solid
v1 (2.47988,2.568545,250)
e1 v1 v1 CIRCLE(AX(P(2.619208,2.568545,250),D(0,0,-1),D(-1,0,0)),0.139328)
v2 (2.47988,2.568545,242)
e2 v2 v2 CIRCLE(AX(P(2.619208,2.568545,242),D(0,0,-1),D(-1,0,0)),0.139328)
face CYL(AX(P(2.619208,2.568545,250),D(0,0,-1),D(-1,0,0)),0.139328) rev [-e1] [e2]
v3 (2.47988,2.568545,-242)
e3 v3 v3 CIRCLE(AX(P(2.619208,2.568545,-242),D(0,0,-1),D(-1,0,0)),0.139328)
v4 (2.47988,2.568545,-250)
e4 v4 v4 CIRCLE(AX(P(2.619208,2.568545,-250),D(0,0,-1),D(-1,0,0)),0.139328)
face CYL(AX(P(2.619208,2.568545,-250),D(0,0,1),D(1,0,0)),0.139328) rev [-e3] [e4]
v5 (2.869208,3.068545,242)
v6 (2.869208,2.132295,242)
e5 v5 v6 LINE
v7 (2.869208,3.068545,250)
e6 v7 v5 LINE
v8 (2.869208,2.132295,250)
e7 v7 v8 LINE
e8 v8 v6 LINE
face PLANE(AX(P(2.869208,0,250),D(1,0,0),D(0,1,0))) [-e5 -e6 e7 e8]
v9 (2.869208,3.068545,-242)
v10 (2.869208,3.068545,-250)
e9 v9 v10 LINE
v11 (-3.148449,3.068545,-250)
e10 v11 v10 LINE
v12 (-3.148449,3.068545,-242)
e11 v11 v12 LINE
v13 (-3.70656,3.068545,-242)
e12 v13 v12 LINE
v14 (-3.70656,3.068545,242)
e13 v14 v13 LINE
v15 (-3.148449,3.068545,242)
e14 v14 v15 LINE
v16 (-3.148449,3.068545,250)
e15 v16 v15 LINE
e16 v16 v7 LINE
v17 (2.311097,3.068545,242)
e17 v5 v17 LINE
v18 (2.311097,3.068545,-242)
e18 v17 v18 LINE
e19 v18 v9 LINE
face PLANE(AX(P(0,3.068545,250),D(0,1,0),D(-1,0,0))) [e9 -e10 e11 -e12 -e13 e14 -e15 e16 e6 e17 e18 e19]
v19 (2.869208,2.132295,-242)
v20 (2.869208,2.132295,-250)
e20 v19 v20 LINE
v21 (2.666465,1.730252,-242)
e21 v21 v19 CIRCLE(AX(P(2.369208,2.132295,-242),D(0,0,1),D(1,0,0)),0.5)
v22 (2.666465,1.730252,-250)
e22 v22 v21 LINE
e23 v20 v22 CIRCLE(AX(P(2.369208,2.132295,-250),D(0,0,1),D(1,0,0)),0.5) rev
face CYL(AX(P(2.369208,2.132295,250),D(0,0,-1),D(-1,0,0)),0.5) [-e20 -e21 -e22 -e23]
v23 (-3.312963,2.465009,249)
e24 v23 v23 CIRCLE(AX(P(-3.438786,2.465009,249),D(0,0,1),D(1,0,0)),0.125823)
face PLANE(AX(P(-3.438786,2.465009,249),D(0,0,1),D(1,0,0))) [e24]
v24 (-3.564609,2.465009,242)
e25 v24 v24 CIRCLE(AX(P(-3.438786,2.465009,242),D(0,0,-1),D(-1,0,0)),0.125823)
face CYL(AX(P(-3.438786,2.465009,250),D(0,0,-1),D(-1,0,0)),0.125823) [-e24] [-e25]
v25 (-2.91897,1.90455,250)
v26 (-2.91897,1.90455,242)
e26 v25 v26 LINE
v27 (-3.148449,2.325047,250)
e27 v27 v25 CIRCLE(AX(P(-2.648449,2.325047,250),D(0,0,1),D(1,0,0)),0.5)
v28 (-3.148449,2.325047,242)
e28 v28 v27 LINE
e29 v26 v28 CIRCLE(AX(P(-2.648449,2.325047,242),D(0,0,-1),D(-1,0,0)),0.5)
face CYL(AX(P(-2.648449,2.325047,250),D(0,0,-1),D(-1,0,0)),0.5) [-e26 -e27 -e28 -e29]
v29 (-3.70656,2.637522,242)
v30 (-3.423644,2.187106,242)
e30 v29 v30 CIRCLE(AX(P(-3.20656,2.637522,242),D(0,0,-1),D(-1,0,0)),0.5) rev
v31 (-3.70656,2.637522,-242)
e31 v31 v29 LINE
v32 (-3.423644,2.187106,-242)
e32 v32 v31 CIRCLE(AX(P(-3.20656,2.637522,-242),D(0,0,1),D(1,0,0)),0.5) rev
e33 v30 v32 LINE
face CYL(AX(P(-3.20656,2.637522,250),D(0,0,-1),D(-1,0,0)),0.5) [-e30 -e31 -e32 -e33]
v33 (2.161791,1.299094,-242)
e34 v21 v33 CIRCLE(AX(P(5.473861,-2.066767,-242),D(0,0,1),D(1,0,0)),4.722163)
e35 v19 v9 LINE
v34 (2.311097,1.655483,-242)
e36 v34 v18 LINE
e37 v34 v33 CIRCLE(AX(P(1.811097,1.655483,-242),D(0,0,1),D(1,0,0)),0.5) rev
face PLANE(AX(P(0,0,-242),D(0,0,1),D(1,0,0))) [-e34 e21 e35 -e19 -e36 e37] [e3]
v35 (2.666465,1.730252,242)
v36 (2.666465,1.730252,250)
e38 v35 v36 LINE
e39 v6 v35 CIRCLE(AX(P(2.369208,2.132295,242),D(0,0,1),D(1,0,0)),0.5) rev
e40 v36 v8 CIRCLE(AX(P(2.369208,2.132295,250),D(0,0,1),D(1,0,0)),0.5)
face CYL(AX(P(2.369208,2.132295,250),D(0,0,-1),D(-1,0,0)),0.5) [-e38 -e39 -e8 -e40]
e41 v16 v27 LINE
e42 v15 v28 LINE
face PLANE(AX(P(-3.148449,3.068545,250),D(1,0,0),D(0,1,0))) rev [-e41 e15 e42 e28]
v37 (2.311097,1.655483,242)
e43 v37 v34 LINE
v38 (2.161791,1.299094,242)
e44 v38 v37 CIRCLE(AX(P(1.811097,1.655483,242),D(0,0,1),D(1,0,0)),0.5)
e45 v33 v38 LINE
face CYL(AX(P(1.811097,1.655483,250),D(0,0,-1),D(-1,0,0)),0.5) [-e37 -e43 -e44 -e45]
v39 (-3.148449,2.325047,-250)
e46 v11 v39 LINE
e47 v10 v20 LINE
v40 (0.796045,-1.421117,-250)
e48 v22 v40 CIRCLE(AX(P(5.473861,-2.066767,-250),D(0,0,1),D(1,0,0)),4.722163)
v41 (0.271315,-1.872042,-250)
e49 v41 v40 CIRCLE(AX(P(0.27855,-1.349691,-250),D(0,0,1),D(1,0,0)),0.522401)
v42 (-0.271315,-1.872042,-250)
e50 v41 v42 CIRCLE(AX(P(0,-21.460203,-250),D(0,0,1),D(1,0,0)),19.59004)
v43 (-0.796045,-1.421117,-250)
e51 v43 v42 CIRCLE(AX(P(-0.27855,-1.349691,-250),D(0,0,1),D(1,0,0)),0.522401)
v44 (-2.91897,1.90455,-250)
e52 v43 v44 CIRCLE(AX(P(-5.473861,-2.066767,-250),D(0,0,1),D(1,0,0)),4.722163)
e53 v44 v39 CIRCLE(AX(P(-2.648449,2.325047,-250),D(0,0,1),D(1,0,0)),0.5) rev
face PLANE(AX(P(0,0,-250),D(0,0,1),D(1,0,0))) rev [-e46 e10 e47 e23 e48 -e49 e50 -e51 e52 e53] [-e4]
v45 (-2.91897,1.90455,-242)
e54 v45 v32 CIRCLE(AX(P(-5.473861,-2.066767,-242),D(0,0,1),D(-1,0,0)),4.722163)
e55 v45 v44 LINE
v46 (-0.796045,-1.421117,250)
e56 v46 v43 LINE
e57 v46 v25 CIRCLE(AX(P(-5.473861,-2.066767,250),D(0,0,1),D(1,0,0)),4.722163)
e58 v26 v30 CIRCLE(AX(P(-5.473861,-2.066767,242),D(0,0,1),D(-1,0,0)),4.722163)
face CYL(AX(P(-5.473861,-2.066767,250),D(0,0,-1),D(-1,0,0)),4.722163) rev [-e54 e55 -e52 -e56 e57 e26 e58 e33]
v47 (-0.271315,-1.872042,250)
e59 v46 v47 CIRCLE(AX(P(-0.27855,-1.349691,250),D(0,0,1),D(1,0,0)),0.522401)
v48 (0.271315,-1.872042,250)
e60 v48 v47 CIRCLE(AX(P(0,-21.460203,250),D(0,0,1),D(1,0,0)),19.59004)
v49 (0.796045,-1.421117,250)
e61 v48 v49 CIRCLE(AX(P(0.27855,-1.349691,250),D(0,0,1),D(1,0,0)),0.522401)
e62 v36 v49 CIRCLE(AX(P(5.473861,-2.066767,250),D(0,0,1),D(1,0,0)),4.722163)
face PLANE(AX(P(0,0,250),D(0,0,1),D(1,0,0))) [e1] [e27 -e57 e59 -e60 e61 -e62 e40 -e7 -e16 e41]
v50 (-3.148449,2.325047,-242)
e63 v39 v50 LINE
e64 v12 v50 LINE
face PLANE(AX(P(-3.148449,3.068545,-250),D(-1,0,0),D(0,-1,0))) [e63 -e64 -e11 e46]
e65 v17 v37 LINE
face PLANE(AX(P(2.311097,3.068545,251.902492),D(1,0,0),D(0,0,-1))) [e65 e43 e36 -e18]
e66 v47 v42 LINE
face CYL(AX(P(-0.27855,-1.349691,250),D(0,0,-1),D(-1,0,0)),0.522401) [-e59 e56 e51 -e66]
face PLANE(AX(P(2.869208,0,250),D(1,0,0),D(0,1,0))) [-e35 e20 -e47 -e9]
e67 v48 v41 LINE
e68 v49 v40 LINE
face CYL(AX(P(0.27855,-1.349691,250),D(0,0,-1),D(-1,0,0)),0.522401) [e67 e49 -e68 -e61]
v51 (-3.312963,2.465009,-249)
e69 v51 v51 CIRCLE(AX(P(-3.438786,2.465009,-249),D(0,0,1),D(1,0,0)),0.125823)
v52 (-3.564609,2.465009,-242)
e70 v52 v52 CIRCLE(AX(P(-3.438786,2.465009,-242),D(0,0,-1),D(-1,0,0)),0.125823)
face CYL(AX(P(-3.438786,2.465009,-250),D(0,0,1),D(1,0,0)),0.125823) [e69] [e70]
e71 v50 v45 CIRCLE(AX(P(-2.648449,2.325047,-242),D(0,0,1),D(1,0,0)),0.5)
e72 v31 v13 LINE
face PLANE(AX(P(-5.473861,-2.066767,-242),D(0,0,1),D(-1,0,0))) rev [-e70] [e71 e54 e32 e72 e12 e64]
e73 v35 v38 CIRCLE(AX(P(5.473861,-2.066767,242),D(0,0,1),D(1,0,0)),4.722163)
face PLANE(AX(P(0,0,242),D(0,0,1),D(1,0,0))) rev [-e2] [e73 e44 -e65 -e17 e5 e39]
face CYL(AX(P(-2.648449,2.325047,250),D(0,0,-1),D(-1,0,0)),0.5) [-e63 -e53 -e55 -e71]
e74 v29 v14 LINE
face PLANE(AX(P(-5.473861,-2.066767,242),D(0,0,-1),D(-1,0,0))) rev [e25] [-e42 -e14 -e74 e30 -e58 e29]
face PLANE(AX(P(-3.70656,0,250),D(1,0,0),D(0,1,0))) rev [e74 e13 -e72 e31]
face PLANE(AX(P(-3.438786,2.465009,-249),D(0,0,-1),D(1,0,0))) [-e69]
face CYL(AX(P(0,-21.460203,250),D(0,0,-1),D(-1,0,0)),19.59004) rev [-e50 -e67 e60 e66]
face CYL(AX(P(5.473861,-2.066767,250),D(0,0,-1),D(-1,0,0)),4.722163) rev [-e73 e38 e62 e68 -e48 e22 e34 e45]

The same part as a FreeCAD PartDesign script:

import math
import FreeCAD as App
import Part
import Sketcher
Q = App.Units.Quantity


def edges_at(feature, points):
    """Names of the edges that pass closest to the given points."""
    edges = feature.Shape.Edges
    near = lambda p: min(range(len(edges)), key=lambda i: edges[i].distToShape(Part.Vertex(*p))[0])
    return sorted({f"Edge{near(p) + 1}" for p in points})

doc = App.newDocument("Part")
body = doc.addObject("PartDesign::Body", "Body")

sketch1 = doc.addObject("Sketcher::SketchObject", "Sketch")
body.addObject(sketch1)
sketch1.AttachmentSupport = (doc.XY_Plane, [""])
sketch1.MapMode = "FlatFace"
sketch1.addGeometry([
    Part.LineSegment(App.Vector(2.9, 3.1, 0), App.Vector(-3.7, 3.1, 0)),
    Part.LineSegment(App.Vector(-3.7, 3.1, 0), App.Vector(-3.7, 2.3, 0)),
    Part.ArcOfCircle(Part.Circle(App.Vector(-5.5, -2.1, 0), App.Vector(0, 0, 1), 4.7), math.radians(8), math.radians(68)),
    Part.ArcOfCircle(Part.Circle(App.Vector(-0.3, -1.3, 0), App.Vector(0, 0, 1), 0.5), math.radians(-172), math.radians(-89)),
    Part.ArcOfCircle(Part.Circle(App.Vector(0, -21.5, 0), App.Vector(0, 0, 1), 19.6), math.radians(89.21), math.radians(90.79)),
    Part.ArcOfCircle(Part.Circle(App.Vector(0.3, -1.3, 0), App.Vector(0, 0, 1), 0.5), math.radians(-91), math.radians(-8)),
    Part.ArcOfCircle(Part.Circle(App.Vector(5.5, -2.1, 0), App.Vector(0, 0, 1), 4.7), math.radians(123), math.radians(172)),
    Part.LineSegment(App.Vector(2.9, 1.9, 0), App.Vector(2.9, 3.1, 0)),
], False)
sketch1.addConstraint([
    Sketcher.Constraint("Coincident", 0, 2, 1, 1),
    Sketcher.Constraint("Coincident", 1, 2, 2, 2),
    Sketcher.Constraint("Tangent", 2, 1, 3, 1),
    Sketcher.Constraint("Tangent", 3, 2, 4, 2),
    Sketcher.Constraint("Tangent", 4, 1, 5, 1),
    Sketcher.Constraint("Tangent", 5, 2, 6, 2),
    Sketcher.Constraint("Coincident", 6, 1, 7, 1),
    Sketcher.Constraint("Coincident", 7, 2, 0, 1),
    Sketcher.Constraint("Horizontal", 0),
    Sketcher.Constraint("Vertical", 1),
    Sketcher.Constraint("Vertical", 7),
    Sketcher.Constraint("Equal", 3, 5),
    Sketcher.Constraint("Equal", 2, 6),
    Sketcher.Constraint("Symmetric", 3, 3, 5, 3, -2),
    Sketcher.Constraint("Horizontal", 2, 3, 6, 3),
    Sketcher.Constraint("Radius", 3, Q("0.522401 mm")),
    Sketcher.Constraint("Radius", 2, Q("4.722163 mm")),
    Sketcher.Constraint("Radius", 4, Q("19.590036 mm")),
    Sketcher.Constraint("DistanceY", 1, 2, 1, 1, Q("0.756332 mm")),
    Sketcher.Constraint("DistanceY", 4, 3, -1, 1, Q("21.460199 mm")),
    Sketcher.Constraint("DistanceX", 3, 3, 5, 3, Q("0.5571 mm")),
    Sketcher.Constraint("DistanceX", 2, 3, 0, 2, Q("1.767301 mm")),
    Sketcher.Constraint("DistanceX", 0, 2, 0, 1, Q("6.575768 mm")),
    Sketcher.Constraint("DistanceY", 7, 1, 7, 2, Q("1.196454 mm")),
])
pad1 = doc.addObject("PartDesign::Pad", "Pad")
body.addObject(pad1)
pad1.Profile = sketch1
pad1.Length = 500
pad1.Midplane = True

sketch2 = doc.addObject("Sketcher::SketchObject", "Sketch001")
body.addObject(sketch2)
sketch2.AttachmentSupport = (doc.XY_Plane, [""])
sketch2.MapMode = "FlatFace"
sketch2.addGeometry([
    Part.LineSegment(App.Vector(2.3, 3.1, 0), App.Vector(2.3, 1.2, 0)),
    Part.LineSegment(App.Vector(2.3, 1.2, 0), App.Vector(2.9, 1.2, 0)),
    Part.LineSegment(App.Vector(2.9, 1.2, 0), App.Vector(2.9, 3.1, 0)),
    Part.LineSegment(App.Vector(2.9, 3.1, 0), App.Vector(2.3, 3.1, 0)),
], False)
sketch2.addConstraint([
    Sketcher.Constraint("Coincident", 0, 2, 1, 1),
    Sketcher.Constraint("Coincident", 1, 2, 2, 1),
    Sketcher.Constraint("Coincident", 2, 2, 3, 1),
    Sketcher.Constraint("Coincident", 3, 2, 0, 1),
    Sketcher.Constraint("Vertical", 0),
    Sketcher.Constraint("Horizontal", 1),
    Sketcher.Constraint("Vertical", 2),
    Sketcher.Constraint("Horizontal", 3),
    Sketcher.Constraint("DistanceX", 1, 1, 1, 2, Q("0.558111 mm")),
    Sketcher.Constraint("DistanceY", 0, 2, 0, 1, Q("1.818787 mm")),
    Sketcher.Constraint("DistanceX", -1, 1, 1, 2, Q("2.869208 mm")),
    Sketcher.Constraint("DistanceY", -1, 1, 0, 2, Q("1.249758 mm")),
])
pocket1 = doc.addObject("PartDesign::Pocket", "Pocket")
body.addObject(pocket1)
pocket1.Profile = sketch2
pocket1.Type = "TwoLengths"
pocket1.Length = 242
pocket1.Length2 = 242
pocket1.Reversed = True

sketch3 = doc.addObject("Sketcher::SketchObject", "Sketch002")
body.addObject(sketch3)
sketch3.AttachmentSupport = (doc.XY_Plane, [""])
sketch3.MapMode = "FlatFace"
sketch3.AttachmentOffset = App.Placement(App.Vector(0, 0, 250), App.Rotation())
sketch3.addGeometry([
    Part.Circle(App.Vector(2.62, 2.57, 0), App.Vector(0, 0, 1), 0.14),
    Part.LineSegment(App.Vector(-3.71, 2.31, 0), App.Vector(-3.71, 3.07, 0)),
    Part.LineSegment(App.Vector(-3.71, 3.07, 0), App.Vector(-3.15, 3.07, 0)),
    Part.LineSegment(App.Vector(-3.15, 3.07, 0), App.Vector(-3.15, 2.04, 0)),
    Part.ArcOfCircle(Part.Circle(App.Vector(-5.47, -2.07, 0), App.Vector(0, 0, 1), 4.72), math.radians(60.5), math.radians(68.02)),
    Part.Circle(App.Vector(-3.44, 2.47, 0), App.Vector(0, 0, 1), 0.13),
], False)
sketch3.addConstraint([
    Sketcher.Constraint("Coincident", 1, 2, 2, 1),
    Sketcher.Constraint("Coincident", 2, 2, 3, 1),
    Sketcher.Constraint("Coincident", 3, 2, 4, 1),
    Sketcher.Constraint("Coincident", 4, 2, 1, 1),
    Sketcher.Constraint("Vertical", 1),
    Sketcher.Constraint("Horizontal", 2),
    Sketcher.Constraint("Vertical", 3),
    Sketcher.Constraint("DistanceY", 0, 3, 1, 2, Q("0.5 mm")),
    Sketcher.Constraint("Diameter", 0, Q("0.278656 mm")),
    Sketcher.Constraint("Diameter", 5, Q("0.251646 mm")),
    Sketcher.Constraint("Radius", 4, Q("4.722163 mm")),
    Sketcher.Constraint("DistanceX", 2, 1, 2, 2, Q("0.558111 mm")),
    Sketcher.Constraint("DistanceY", 1, 1, 1, 2, Q("0.756332 mm")),
    Sketcher.Constraint("DistanceY", 3, 2, 3, 1, Q("1.025412 mm")),
    Sketcher.Constraint("DistanceX", -1, 1, 0, 3, Q("2.619208 mm")),
    Sketcher.Constraint("DistanceX", 4, 3, -1, 1, Q("5.473861 mm")),
    Sketcher.Constraint("DistanceY", -1, 1, 5, 3, Q("2.465009 mm")),
    Sketcher.Constraint("DistanceY", -1, 1, 0, 3, Q("2.568545 mm")),
    Sketcher.Constraint("DistanceX", 5, 3, -1, 1, Q("3.438786 mm")),
])
pocket2 = doc.addObject("PartDesign::Pocket", "Pocket001")
body.addObject(pocket2)
pocket2.Profile = sketch3
pocket2.Length = 8

sketch4 = doc.addObject("Sketcher::SketchObject", "Sketch003")
body.addObject(sketch4)
sketch4.AttachmentSupport = (doc.XY_Plane, [""])
sketch4.MapMode = "FlatFace"
sketch4.AttachmentOffset = App.Placement(App.Vector(0, 0, 250), App.Rotation())
sketch4.addGeometry(Part.Circle(App.Vector(-3.44, 2.47, 0), App.Vector(0, 0, 1), 0.13), False)
sketch4.addConstraint([
    Sketcher.Constraint("Diameter", 0, Q("0.251646 mm")),
    Sketcher.Constraint("DistanceY", -1, 1, 0, 3, Q("2.465009 mm")),
    Sketcher.Constraint("DistanceX", 0, 3, -1, 1, Q("3.438786 mm")),
])
pocket3 = doc.addObject("PartDesign::Pocket", "Pocket002")
body.addObject(pocket3)
pocket3.Profile = sketch4
pocket3.Length = 1
doc.recompute()

mirrored = doc.addObject("PartDesign::Mirrored", "Mirrored")
body.addObject(mirrored)
mirrored.Originals = [pocket2, pocket3]
mirrored.MirrorPlane = (doc.XY_Plane, [""])
body.Tip = mirrored
doc.recompute()

fillet = doc.addObject("PartDesign::Fillet", "Fillet")
body.addObject(fillet)
fillet.Base = (mirrored, edges_at(mirrored, [
    (-3.148, 2.043, -246),
    (2.869, 1.872, 246),
    (2.869, 1.872, -246),
    (2.311, 1.44, 0),
    (-3.707, 2.312, 0),
    (-3.148, 2.043, 246),
]))
fillet.Radius = 0.5

doc.recompute()
